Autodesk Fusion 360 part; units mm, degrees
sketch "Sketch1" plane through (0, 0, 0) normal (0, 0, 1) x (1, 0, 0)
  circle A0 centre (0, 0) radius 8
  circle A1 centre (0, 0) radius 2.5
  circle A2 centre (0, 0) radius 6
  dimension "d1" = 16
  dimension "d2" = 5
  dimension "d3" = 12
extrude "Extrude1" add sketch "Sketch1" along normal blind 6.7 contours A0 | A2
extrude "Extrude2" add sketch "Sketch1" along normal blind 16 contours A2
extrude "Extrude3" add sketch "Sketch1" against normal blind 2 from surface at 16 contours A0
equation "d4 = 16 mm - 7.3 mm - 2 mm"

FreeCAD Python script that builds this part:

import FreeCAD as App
import Part
import Sketcher

doc = App.newDocument("Part")
body = doc.addObject("PartDesign::Body", "Body")

# Sketch on XY plane
sketch1 = body.newObject("Sketcher::SketchObject", "Sketch")
sketch1.AttachmentSupport = (doc.getObject("XY_Plane"), [""])
sketch1.MapMode = "FlatFace"
sketch1.addGeometry(Part.Circle(App.Vector(0, 0, 0), App.Vector(0, 0, 1), 8), False)
sketch1.addGeometry(Part.Circle(App.Vector(0, 0, 0), App.Vector(0, 0, 1), 2.5), False)
sketch1.addConstraint(Sketcher.Constraint("Coincident", 0, 3, -1, 1))
sketch1.addConstraint(Sketcher.Constraint("Coincident", 1, 3, -1, 1))
sketch1.addConstraint(Sketcher.Constraint("Diameter", 0, 16.0))
sketch1.addConstraint(Sketcher.Constraint("Diameter", 1, 5.0))
pad1 = body.newObject("PartDesign::Pad", "Pad")
pad1.Profile = sketch1
pad1.Length = 6.7

# Sketch on XY plane
sketch2 = body.newObject("Sketcher::SketchObject", "Sketch001")
sketch2.AttachmentSupport = (doc.getObject("XY_Plane"), [""])
sketch2.MapMode = "FlatFace"
sketch2.addGeometry(Part.Circle(App.Vector(0, 0, 0), App.Vector(0, 0, 1), 6), False)
sketch2.addGeometry(Part.Circle(App.Vector(0, 0, 0), App.Vector(0, 0, 1), 2.5), False)
sketch2.addConstraint(Sketcher.Constraint("Coincident", 0, 3, -1, 1))
sketch2.addConstraint(Sketcher.Constraint("Coincident", 1, 3, -1, 1))
sketch2.addConstraint(Sketcher.Constraint("Diameter", 0, 12.0))
sketch2.addConstraint(Sketcher.Constraint("Diameter", 1, 5.0))
pad2 = body.newObject("PartDesign::Pad", "Pad001")
pad2.Profile = sketch2
pad2.Length = 16

# Sketch on XY plane
sketch3 = body.newObject("Sketcher::SketchObject", "Sketch002")
sketch3.AttachmentSupport = (doc.getObject("XY_Plane"), [""])
sketch3.MapMode = "FlatFace"
sketch3.AttachmentOffset = App.Placement(App.Vector(0, 0, 16), App.Rotation())
sketch3.addGeometry(Part.Circle(App.Vector(0, 0, 0), App.Vector(0, 0, 1), 8), False)
sketch3.addGeometry(Part.Circle(App.Vector(0, 0, 0), App.Vector(0, 0, 1), 6), False)
sketch3.addConstraint(Sketcher.Constraint("Coincident", 0, 3, -1, 1))
sketch3.addConstraint(Sketcher.Constraint("Coincident", 1, 3, -1, 1))
sketch3.addConstraint(Sketcher.Constraint("Diameter", 0, 16.0))
sketch3.addConstraint(Sketcher.Constraint("Diameter", 1, 12.0))
pad3 = body.newObject("PartDesign::Pad", "Pad002")
pad3.Profile = sketch3
pad3.Length = 2
pad3.Reversed = True

doc.recompute()
